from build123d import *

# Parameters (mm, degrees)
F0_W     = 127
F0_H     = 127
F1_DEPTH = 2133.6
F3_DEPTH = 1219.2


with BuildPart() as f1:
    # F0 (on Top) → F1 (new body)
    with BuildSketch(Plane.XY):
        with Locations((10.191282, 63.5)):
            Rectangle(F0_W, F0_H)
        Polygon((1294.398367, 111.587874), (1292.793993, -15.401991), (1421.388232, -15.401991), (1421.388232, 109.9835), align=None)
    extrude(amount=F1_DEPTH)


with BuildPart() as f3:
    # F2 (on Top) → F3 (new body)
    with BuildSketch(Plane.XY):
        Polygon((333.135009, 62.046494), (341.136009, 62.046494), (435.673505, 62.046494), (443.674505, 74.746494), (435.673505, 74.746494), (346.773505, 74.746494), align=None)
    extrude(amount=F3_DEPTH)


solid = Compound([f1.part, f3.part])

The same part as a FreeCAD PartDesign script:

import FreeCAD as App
import Part
import Sketcher

V = App.Vector
Q = App.Units.Quantity


def add_polygon(sketch, points):
    """Adds a closed chain of lines whose ends are joined by coincident constraints."""
    first, n = sketch.GeometryCount, len(points)
    for a, b in zip(points, points[1:] + points[:1]):
        sketch.addGeometry(Part.LineSegment(App.Vector(*a, 0), App.Vector(*b, 0)), False)
    for i in range(n):
        sketch.addConstraint(Sketcher.Constraint("Coincident", first + i, 2, first + (i + 1) % n, 1))

doc = App.newDocument("Part")
params = doc.addObject("Spreadsheet::Sheet", "Params")
for row, (alias, value) in enumerate([
    ("sketch1_width", "5 in"),
    ("sketch1_length", "5 in"),
    ("pad1_length", "84 in"),
    ("sketch2_width", "3.815 in"),
    ("pad2_length", "48 in"),
], start=1):
    params.set(f"A{row}", alias)
    params.set(f"B{row}", "=" + value)
    params.setAlias(f"B{row}", alias)

body = doc.addObject("PartDesign::Body", "Body")
body.AllowCompound = True

# Sketch on XY plane
sketch1 = doc.addObject("Sketcher::SketchObject", "Sketch")
body.addObject(sketch1)
sketch1.AttachmentSupport = (doc.XY_Plane, [""])
sketch1.MapMode = "FlatFace"
add_polygon(sketch1, [(-53.308718, 127), (-53.308718, 0), (73.691282, 0), (73.691282, 127)])  # lines 0-3
add_polygon(sketch1, [(1294.398367, 111.587874), (1292.793993, -15.401991), (1421.388232, -15.401991), (1421.388232, 109.9835)])  # lines 4-7
sketch1.addConstraint(Sketcher.Constraint("Vertical", 0))
sketch1.addConstraint(Sketcher.Constraint("Horizontal", 1))
sketch1.addConstraint(Sketcher.Constraint("Vertical", 2))
sketch1.addConstraint(Sketcher.Constraint("Horizontal", 3))
sketch1.addConstraint(Sketcher.Constraint("Horizontal", 5))
sketch1.addConstraint(Sketcher.Constraint("Vertical", 6))
sketch1.addConstraint(Sketcher.Constraint("PointOnObject", 0, 2, -1))
sketch1.addConstraint(Sketcher.Constraint("Perpendicular", 4, 7))
sketch1.addConstraint(Sketcher.Constraint("Equal", 3, 0))
sketch1.addConstraint(Sketcher.Constraint("Equal", 4, 7))
sketch1.addConstraint(Sketcher.Constraint("DistanceX", 1, 1, 1, 2, Q("5 in")))
sketch1.addConstraint(Sketcher.Constraint("Distance", 4, Q("5 in")))
sketch1.addConstraint(Sketcher.Constraint("DistanceX", 5, 1, 5, 2, Q("128.594239 mm")))
sketch1.addConstraint(Sketcher.Constraint("DistanceY", -1, 1, 6, 2, Q("109.9835 mm")))
sketch1.addConstraint(Sketcher.Constraint("DistanceX", -1, 1, 1, 2, Q("73.691282 mm")))
sketch1.addConstraint(Sketcher.Constraint("DistanceX", -1, 1, 5, 2, Q("1421.388232 mm")))
sketch1.setExpression("Constraints[18]", "Params.sketch1_width")
sketch1.setExpression("Constraints[19]", "Params.sketch1_length")
pad1 = doc.addObject("PartDesign::Pad", "Pad")
body.addObject(pad1)
pad1.Profile = sketch1
pad1.setExpression("Length", "Params.pad1_length")
body2 = doc.addObject("PartDesign::Body", "Body001")

# Sketch on XY plane
sketch2 = doc.addObject("Sketcher::SketchObject", "Sketch001")
body2.addObject(sketch2)
sketch2.AttachmentSupport = (doc.getObject("XY_Plane001"), [""])
sketch2.MapMode = "FlatFace"
add_polygon(sketch2, [(333.135009, 62.046494), (435.673505, 62.046494), (443.674505, 74.746494), (346.773505, 74.746494)])  # lines 0-3
sketch2.addConstraint(Sketcher.Constraint("Horizontal", 0))
sketch2.addConstraint(Sketcher.Constraint("Horizontal", 2))
sketch2.addConstraint(Sketcher.Constraint("DistanceY", 0, 2, 1, 2, Q("0.5 in")))
sketch2.addConstraint(Sketcher.Constraint("DistanceX", 2, 2, 0, 2, Q("3.5 in")))
sketch2.addConstraint(Sketcher.Constraint("DistanceX", 2, 2, 2, 1, Q("3.815 in")))
sketch2.addConstraint(Sketcher.Constraint("DistanceX", -1, 1, 0, 2, Q("17.1525002 in")))
sketch2.addConstraint(Sketcher.Constraint("Distance", 3, Q("18.635948 mm")))
sketch2.addConstraint(Sketcher.Constraint("DistanceY", -1, 1, 0, 2, Q("62.046494 mm")))
sketch2.setExpression("Constraints[8]", "Params.sketch2_width")
pad2 = doc.addObject("PartDesign::Pad", "Pad001")
body2.addObject(pad2)
pad2.Profile = sketch2
pad2.setExpression("Length", "Params.pad2_length")

doc.recompute()
